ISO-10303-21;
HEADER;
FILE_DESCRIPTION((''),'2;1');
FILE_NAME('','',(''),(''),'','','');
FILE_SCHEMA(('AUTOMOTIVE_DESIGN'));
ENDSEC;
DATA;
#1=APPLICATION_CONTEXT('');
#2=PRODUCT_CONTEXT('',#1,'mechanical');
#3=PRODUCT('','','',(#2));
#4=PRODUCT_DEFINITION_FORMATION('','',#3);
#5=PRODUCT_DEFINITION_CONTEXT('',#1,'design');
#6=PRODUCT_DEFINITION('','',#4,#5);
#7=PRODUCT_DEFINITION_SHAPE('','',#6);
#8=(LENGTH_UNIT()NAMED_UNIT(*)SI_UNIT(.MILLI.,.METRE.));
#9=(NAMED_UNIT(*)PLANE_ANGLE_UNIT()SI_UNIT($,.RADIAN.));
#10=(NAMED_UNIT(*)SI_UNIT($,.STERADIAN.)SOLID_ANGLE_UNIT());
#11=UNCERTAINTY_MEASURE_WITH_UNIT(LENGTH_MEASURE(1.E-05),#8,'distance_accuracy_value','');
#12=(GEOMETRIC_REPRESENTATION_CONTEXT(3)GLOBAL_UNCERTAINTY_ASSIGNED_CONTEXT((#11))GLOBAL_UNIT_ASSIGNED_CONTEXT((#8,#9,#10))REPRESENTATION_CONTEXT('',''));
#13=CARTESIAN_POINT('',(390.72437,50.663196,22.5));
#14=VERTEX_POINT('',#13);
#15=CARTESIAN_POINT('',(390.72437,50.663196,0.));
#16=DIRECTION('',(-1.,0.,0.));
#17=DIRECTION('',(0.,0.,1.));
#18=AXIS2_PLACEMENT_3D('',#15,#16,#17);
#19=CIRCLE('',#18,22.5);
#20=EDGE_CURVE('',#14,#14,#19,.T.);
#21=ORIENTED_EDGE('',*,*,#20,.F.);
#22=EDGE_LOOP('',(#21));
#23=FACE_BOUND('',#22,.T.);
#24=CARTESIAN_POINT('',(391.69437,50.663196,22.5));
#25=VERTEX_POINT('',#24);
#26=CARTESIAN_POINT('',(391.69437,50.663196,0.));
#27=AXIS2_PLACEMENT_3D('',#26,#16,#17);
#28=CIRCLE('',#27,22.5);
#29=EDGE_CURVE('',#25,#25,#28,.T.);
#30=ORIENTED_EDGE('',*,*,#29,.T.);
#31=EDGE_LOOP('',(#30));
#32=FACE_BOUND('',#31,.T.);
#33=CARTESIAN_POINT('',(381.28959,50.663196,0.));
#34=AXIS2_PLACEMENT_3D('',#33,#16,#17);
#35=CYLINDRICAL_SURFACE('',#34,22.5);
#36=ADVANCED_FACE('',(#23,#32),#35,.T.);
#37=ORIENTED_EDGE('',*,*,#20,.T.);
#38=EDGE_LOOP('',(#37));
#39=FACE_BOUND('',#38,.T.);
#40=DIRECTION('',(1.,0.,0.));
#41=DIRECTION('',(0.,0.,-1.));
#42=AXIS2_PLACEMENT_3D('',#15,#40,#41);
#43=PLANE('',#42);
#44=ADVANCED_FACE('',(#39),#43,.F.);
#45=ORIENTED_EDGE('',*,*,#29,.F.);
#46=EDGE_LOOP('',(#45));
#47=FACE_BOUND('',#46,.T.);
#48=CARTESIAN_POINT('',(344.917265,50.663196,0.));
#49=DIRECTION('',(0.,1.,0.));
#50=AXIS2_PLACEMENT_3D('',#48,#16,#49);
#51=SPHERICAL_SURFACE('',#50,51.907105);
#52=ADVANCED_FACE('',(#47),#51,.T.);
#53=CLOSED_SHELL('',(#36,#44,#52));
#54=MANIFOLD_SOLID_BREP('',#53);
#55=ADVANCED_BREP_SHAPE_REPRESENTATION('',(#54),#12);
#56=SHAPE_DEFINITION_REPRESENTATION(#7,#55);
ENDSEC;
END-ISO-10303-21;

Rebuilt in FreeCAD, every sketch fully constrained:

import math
import FreeCAD as App
import Part
import Sketcher

V = App.Vector
Q = App.Units.Quantity

doc = App.newDocument("Part")
params = doc.addObject("Spreadsheet::Sheet", "Params")
for row, (alias, value) in enumerate([
    ("sketch1_width", "6.1 mm"),
    ("sketch1_height", "22.5 mm"),
    ("sketch1_width2", "0.97 mm"),
    ("revolution_angle", "360 deg"),
], start=1):
    params.set(f"A{row}", alias)
    params.set(f"B{row}", "=" + value)
    params.setAlias(f"B{row}", alias)

body = doc.addObject("PartDesign::Body", "Body")

sketch1 = doc.addObject("Sketcher::SketchObject", "Sketch")
body.addObject(sketch1)
sketch1.AttachmentSupport = (doc.XY_Plane, [""])
sketch1.MapMode = "FlatFace"
sketch1.addGeometry(Part.LineSegment(V(390.72437, 73.163196, 0), V(390.72437, 50.663196, 0)), False)
sketch1.addGeometry(Part.LineSegment(V(390.72437, 50.663196, 0), V(396.82437, 50.663196, 0)), False)
sketch1.addGeometry(Part.ArcOfCircle(Part.Circle(V(344.917265, 50.663196, 0), V(0, 0, 1), 51.907105), math.radians(0), math.radians(25.687766)), False)
sketch1.addGeometry(Part.LineSegment(V(391.69437, 73.163196, 0), V(390.72437, 73.163196, 0)), False)
sketch1.addGeometry(Part.LineSegment(V(344.917265, 50.663196, 0), V(396.82437, 50.663196, 0)), True)
sketch1.addConstraint(Sketcher.Constraint("Coincident", 0, 2, 1, 1))
sketch1.addConstraint(Sketcher.Constraint("Coincident", 1, 2, 2, 1))
sketch1.addConstraint(Sketcher.Constraint("Coincident", 2, 2, 3, 1))
sketch1.addConstraint(Sketcher.Constraint("Coincident", 3, 2, 0, 1))
sketch1.addConstraint(Sketcher.Constraint("Vertical", 0))
sketch1.addConstraint(Sketcher.Constraint("Horizontal", 1))
sketch1.addConstraint(Sketcher.Constraint("Horizontal", 3))
sketch1.addConstraint(Sketcher.Constraint("Horizontal", 4))
sketch1.addConstraint(Sketcher.Constraint("Coincident", 4, 1, 2, 3))
sketch1.addConstraint(Sketcher.Constraint("Coincident", 4, 2, 1, 2))
sketch1.addConstraint(Sketcher.Constraint("DistanceX", 1, 1, 1, 2, Q("6.1 mm")))
sketch1.addConstraint(Sketcher.Constraint("DistanceY", 0, 2, 0, 1, Q("22.5 mm")))
sketch1.addConstraint(Sketcher.Constraint("DistanceX", 3, 2, 3, 1, Q("0.97 mm")))
sketch1.addConstraint(Sketcher.Constraint("DistanceX", -1, 1, 0, 2, Q("390.72437 mm")))
sketch1.addConstraint(Sketcher.Constraint("DistanceY", -1, 1, 2, 3, Q("50.663196 mm")))
sketch1.setExpression("Constraints[10]", "Params.sketch1_width")
sketch1.setExpression("Constraints[11]", "Params.sketch1_height")
sketch1.setExpression("Constraints[12]", "Params.sketch1_width2")
revolution = doc.addObject("PartDesign::Revolution", "Revolution")
body.addObject(revolution)
revolution.Profile = sketch1
revolution.ReferenceAxis = (sketch1, ["Axis0"])
revolution.setExpression("Angle", "Params.revolution_angle")

doc.recompute()
